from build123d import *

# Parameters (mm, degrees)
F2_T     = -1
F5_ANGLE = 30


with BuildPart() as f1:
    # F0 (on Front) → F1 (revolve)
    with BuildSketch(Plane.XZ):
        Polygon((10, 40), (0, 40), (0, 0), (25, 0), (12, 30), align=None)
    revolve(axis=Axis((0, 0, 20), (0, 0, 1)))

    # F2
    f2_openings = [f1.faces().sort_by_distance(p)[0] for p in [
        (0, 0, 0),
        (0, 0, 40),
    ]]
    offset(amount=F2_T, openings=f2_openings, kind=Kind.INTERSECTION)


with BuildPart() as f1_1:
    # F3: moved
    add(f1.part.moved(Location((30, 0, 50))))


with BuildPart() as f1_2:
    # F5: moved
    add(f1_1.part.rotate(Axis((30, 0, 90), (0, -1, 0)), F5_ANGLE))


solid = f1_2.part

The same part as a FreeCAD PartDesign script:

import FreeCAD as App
import Part
import Sketcher

V = App.Vector


def faces_at(feature, points):
    """Names of the faces that lie closest to the given points."""
    faces = feature.Shape.Faces
    near = lambda p: min(range(len(faces)), key=lambda i: faces[i].distToShape(Part.Vertex(*p))[0])
    return sorted({f"Face{near(p) + 1}" for p in points})


def add_polygon(sketch, points):
    """Adds a closed chain of lines whose ends are joined by coincident constraints."""
    first, n = sketch.GeometryCount, len(points)
    for a, b in zip(points, points[1:] + points[:1]):
        sketch.addGeometry(Part.LineSegment(App.Vector(*a, 0), App.Vector(*b, 0)), False)
    for i in range(n):
        sketch.addConstraint(Sketcher.Constraint("Coincident", first + i, 2, first + (i + 1) % n, 1))

doc = App.newDocument("Part")
params = doc.addObject("Spreadsheet::Sheet", "Params")
for row, (alias, value) in enumerate([
    ("sketch1_width", "10 mm"),
    ("sketch1_width2", "25 mm"),
    ("sketch1_height", "40 mm"),
    ("revolution_angle", "360 deg"),
    ("thickness_wall", "1 mm"),
], start=1):
    params.set(f"A{row}", alias)
    params.set(f"B{row}", "=" + value)
    params.setAlias(f"B{row}", alias)

body = doc.addObject("PartDesign::Body", "Body")

# Sketch on XZ plane
sketch1 = body.newObject("Sketcher::SketchObject", "Sketch")
sketch1.AttachmentSupport = (doc.getObject("XZ_Plane"), [""])
sketch1.MapMode = "FlatFace"
add_polygon(sketch1, [(10, 40), (0, 40), (0, 0), (25, 0), (12, 30)])  # lines 0-4
sketch1.addConstraint([
    Sketcher.Constraint("Horizontal", 0),
    Sketcher.Constraint("Vertical", 1),
    Sketcher.Constraint("Horizontal", 2),
    Sketcher.Constraint("Coincident", 1, 2, -1, 1),
    Sketcher.Constraint("DistanceX", 0, 2, 0, 1, 10.0),
    Sketcher.Constraint("DistanceX", 2, 1, 2, 2, 25.0),
    Sketcher.Constraint("DistanceY", 1, 2, 1, 1, 40.0),
    Sketcher.Constraint("DistanceX", -1, 1, 3, 2, 12.0),
    Sketcher.Constraint("DistanceY", -1, 1, 3, 2, 30.0),
])
sketch1.setExpression("Constraints[9]", "Params.sketch1_width")
sketch1.setExpression("Constraints[10]", "Params.sketch1_width2")
sketch1.setExpression("Constraints[11]", "Params.sketch1_height")
revolution = body.newObject("PartDesign::Revolution", "Revolution")
revolution.Profile = sketch1
revolution.ReferenceAxis = (sketch1, ["V_Axis"])
revolution.setExpression("Angle", "Params.revolution_angle")
doc.recompute()

thickness = body.newObject("PartDesign::Thickness", "Thickness")
thickness.Base = (revolution, faces_at(revolution, [(0, 0, 0), (0, 0, 40)]))
thickness.setExpression("Value", "Params.thickness_wall")
thickness.Reversed = True
thickness.Join = "Intersection"
body2 = doc.addObject("PartDesign::Body", "Body001")
doc.recompute()

body.Placement = App.Placement(V(30, 0, 50), App.Rotation(V(0, 0, 1), 0))
boolean = body2.newObject("PartDesign::Boolean", "Boolean")
boolean.Type = "Fuse"
boolean.addObjects([body])
body3 = doc.addObject("PartDesign::Body", "Body002")
doc.recompute()

body2.Placement = App.Placement(V(49.019238, 0, -2.942286), App.Rotation(V(0, -1, 0), 30))
boolean2 = body3.newObject("PartDesign::Boolean", "Boolean001")
boolean2.Type = "Fuse"
boolean2.addObjects([body2])

doc.recompute()
